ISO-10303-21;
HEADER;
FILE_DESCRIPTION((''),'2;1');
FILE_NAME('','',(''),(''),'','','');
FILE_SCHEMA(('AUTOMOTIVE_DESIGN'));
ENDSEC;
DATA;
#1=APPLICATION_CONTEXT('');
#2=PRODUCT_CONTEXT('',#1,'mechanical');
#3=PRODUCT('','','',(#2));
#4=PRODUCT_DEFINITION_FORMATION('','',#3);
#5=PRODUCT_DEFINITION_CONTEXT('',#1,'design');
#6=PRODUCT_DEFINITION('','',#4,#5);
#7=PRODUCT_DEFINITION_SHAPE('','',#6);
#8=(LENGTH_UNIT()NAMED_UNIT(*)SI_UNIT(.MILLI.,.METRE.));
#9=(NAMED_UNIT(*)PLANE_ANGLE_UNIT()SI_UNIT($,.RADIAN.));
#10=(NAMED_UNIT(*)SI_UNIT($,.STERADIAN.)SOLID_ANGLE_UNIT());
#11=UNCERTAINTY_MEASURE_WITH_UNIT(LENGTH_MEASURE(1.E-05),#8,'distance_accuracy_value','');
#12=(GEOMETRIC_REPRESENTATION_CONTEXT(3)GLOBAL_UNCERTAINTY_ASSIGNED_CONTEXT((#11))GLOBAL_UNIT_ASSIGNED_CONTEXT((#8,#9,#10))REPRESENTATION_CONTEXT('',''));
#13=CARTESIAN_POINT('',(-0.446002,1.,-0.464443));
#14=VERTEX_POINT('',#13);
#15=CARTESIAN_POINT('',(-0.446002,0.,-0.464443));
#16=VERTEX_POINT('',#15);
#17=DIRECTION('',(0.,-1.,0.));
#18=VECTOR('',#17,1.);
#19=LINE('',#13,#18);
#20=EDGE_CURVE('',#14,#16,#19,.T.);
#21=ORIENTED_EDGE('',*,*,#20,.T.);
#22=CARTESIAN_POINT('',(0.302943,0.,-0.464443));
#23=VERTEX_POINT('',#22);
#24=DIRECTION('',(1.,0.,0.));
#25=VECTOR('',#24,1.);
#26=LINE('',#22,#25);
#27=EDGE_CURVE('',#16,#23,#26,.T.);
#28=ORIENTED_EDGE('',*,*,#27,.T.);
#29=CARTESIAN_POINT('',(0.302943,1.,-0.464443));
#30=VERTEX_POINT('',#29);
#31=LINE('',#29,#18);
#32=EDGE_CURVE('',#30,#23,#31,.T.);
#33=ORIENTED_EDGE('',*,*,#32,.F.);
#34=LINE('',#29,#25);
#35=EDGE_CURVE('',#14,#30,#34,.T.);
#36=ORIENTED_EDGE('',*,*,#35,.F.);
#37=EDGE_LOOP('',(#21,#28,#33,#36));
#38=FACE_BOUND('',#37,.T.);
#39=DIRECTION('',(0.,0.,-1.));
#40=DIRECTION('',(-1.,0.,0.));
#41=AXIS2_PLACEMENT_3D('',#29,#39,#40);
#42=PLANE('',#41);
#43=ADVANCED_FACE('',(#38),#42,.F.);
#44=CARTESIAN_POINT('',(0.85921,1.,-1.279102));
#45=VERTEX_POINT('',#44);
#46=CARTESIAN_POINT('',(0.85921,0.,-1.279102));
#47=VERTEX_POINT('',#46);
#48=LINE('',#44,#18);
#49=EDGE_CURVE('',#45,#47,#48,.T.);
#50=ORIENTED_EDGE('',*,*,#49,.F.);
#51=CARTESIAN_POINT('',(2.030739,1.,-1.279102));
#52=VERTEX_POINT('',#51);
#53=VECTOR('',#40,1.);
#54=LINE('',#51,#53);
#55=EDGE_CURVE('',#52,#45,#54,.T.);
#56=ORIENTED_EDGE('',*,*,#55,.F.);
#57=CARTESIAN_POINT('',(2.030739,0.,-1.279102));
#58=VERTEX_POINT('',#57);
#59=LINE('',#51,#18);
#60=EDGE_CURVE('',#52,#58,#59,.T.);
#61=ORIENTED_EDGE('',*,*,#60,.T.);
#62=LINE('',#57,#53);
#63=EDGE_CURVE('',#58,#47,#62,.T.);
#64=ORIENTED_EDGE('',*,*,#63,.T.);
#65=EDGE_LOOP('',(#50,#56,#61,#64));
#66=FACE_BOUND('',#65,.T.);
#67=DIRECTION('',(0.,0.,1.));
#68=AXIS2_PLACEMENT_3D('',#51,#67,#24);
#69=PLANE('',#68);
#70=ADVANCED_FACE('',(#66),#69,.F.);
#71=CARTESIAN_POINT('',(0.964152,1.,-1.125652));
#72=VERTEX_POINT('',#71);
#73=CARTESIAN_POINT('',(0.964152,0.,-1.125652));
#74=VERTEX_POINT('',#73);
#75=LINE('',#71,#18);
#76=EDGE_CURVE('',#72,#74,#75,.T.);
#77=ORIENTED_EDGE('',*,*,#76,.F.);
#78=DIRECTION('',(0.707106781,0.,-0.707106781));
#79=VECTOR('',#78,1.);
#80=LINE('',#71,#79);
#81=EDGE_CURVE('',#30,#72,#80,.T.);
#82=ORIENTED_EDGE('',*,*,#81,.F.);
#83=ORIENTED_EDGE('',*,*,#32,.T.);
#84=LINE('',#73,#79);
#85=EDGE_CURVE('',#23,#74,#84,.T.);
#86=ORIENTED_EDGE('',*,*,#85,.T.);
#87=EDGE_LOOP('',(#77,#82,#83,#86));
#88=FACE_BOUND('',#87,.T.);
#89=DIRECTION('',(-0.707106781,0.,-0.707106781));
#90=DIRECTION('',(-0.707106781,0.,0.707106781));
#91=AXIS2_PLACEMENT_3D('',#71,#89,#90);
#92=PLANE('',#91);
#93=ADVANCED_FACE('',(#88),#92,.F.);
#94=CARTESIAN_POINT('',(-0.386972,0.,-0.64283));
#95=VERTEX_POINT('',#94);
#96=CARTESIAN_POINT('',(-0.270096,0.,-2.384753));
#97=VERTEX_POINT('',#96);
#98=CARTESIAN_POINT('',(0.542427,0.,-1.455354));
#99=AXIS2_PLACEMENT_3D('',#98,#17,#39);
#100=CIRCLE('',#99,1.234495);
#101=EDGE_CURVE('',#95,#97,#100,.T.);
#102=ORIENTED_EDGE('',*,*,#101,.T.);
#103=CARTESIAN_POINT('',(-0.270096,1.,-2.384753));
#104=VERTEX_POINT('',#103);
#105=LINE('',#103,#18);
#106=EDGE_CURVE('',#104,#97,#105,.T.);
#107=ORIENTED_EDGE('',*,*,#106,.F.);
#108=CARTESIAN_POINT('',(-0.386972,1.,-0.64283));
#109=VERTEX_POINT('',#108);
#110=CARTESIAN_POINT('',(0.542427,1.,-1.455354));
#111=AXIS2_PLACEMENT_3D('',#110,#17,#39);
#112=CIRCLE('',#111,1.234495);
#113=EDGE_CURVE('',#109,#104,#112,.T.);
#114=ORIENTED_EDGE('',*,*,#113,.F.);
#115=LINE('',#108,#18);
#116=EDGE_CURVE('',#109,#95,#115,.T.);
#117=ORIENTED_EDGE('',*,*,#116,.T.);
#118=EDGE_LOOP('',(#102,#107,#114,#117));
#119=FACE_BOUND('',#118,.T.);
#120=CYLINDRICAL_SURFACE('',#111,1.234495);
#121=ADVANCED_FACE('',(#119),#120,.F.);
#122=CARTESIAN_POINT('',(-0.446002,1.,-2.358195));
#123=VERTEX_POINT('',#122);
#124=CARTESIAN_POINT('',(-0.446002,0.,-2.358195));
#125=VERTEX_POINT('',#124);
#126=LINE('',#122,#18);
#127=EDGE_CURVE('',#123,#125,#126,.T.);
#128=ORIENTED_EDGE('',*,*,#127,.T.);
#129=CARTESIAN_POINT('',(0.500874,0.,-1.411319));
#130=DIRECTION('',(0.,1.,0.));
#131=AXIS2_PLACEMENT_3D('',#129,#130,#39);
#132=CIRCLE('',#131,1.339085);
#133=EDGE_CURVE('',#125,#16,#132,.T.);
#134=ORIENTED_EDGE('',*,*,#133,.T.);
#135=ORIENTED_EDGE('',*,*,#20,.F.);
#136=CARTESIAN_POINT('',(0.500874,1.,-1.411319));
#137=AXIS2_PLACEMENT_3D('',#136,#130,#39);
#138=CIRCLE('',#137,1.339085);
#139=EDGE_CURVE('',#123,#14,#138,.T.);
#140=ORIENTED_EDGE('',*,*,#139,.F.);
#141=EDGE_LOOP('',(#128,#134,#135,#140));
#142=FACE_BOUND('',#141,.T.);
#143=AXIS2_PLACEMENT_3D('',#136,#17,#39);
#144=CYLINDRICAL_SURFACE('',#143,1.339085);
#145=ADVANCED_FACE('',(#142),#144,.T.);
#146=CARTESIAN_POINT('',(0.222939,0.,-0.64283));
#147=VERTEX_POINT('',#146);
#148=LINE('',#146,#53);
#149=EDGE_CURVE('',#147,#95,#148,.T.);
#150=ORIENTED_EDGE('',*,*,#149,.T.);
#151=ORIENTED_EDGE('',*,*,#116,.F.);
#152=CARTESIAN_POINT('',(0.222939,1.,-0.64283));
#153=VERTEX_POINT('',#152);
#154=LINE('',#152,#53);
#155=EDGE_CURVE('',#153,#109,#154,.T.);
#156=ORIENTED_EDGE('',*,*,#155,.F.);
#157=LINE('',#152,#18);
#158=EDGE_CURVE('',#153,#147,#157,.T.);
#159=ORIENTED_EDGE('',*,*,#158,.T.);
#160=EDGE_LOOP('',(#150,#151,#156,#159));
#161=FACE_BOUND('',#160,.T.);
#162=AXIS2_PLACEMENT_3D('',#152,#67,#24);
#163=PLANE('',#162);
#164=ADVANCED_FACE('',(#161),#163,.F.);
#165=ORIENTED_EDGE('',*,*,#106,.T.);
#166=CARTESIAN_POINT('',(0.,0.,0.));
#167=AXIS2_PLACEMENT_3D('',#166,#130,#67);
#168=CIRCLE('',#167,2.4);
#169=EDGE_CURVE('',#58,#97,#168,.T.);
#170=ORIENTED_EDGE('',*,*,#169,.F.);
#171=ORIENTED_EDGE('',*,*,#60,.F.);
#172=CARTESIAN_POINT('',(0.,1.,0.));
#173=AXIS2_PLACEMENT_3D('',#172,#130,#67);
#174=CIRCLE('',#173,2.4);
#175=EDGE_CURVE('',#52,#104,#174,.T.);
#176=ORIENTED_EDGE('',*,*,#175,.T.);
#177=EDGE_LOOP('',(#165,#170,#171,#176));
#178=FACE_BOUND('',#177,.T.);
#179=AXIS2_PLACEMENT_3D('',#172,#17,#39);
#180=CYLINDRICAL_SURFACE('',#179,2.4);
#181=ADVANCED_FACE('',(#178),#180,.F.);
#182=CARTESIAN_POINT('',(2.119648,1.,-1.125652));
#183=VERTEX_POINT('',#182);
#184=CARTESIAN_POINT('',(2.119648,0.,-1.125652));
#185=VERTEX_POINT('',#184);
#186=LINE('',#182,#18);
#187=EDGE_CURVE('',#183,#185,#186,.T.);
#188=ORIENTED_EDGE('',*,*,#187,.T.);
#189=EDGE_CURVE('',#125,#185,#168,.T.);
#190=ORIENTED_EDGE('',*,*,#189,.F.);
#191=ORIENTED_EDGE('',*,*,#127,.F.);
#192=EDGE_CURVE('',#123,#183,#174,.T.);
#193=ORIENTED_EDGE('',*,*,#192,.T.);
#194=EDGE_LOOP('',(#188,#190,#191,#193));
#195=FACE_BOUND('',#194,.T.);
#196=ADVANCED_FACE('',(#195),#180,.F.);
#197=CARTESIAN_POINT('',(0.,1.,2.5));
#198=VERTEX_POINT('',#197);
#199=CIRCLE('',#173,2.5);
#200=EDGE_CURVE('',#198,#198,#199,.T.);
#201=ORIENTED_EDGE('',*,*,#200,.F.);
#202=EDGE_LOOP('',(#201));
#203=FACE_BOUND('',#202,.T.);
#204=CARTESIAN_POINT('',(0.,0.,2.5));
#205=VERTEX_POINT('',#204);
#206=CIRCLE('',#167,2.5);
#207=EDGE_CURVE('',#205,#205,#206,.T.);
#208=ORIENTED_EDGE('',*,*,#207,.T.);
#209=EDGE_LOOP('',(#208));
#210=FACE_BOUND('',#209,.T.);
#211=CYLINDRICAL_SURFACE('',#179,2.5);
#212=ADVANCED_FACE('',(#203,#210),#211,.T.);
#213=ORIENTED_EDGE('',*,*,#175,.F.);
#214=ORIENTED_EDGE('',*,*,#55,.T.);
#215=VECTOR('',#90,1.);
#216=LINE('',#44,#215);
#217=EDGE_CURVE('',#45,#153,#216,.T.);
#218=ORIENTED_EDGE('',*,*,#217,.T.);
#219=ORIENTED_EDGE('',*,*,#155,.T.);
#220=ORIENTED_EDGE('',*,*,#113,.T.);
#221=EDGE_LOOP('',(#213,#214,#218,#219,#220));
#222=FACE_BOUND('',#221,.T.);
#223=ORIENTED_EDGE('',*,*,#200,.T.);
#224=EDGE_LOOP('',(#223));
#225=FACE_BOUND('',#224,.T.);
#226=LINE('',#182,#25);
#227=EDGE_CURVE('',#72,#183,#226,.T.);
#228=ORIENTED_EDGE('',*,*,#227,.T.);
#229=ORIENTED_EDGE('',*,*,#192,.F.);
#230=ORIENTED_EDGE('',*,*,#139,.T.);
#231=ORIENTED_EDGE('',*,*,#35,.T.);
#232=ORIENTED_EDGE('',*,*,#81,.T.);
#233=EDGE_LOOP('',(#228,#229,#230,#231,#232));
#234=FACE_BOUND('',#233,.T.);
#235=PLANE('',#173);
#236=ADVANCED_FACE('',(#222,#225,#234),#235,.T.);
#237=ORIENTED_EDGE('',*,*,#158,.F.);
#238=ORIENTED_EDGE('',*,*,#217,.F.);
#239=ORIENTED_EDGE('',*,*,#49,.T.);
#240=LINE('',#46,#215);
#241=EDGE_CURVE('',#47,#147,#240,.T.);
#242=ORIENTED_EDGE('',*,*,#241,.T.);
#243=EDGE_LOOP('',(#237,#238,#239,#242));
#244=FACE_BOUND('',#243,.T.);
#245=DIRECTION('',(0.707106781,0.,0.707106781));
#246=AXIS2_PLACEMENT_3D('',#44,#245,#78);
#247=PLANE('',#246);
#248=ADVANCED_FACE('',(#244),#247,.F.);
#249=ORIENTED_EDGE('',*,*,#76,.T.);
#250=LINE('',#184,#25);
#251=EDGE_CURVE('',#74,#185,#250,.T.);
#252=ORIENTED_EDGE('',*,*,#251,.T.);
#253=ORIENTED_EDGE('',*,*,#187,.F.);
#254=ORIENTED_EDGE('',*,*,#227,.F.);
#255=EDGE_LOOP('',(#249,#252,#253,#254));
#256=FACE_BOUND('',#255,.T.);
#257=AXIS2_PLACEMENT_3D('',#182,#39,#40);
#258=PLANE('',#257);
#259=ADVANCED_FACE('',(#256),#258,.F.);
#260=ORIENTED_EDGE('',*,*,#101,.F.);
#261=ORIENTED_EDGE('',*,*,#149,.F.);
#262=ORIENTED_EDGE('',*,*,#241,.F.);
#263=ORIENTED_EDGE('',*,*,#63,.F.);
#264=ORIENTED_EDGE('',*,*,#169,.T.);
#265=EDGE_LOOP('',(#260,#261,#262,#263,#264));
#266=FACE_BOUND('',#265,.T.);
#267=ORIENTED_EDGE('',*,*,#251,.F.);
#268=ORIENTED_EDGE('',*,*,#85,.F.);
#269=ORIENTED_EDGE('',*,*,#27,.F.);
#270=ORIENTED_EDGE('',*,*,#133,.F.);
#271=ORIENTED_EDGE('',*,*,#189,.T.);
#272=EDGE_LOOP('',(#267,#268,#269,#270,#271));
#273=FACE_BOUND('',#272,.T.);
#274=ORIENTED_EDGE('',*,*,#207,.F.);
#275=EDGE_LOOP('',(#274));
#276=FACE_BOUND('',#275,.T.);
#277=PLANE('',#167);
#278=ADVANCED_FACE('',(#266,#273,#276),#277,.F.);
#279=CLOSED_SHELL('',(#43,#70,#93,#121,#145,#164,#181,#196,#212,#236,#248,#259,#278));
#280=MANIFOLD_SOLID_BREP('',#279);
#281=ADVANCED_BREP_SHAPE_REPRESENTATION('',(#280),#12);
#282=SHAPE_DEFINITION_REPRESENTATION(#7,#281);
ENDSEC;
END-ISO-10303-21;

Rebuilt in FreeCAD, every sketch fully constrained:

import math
import FreeCAD as App
import Part
import Sketcher

V = App.Vector
Q = App.Units.Quantity

doc = App.newDocument("Part")
body = doc.addObject("PartDesign::Body", "Body")

# Sketch on XZ plane
sketch1 = body.newObject("Sketcher::SketchObject", "Sketch")
sketch1.AttachmentSupport = (doc.getObject("XZ_Plane"), [""])
sketch1.MapMode = "FlatFace"
sketch1.addGeometry(Part.Circle(V(0, 0, 0), V(0, 0, 1), 2.5), False)
sketch1.addGeometry(Part.Circle(V(0, 0, 0), V(0, 0, 1), 2.4), False)
sketch1.addConstraint(Sketcher.Constraint("Coincident", 0, 3, -1, 1))
sketch1.addConstraint(Sketcher.Constraint("Coincident", 1, 3, -1, 1))
sketch1.addConstraint(Sketcher.Constraint("Diameter", 0, Q("5 mm")))
sketch1.addConstraint(Sketcher.Constraint("Diameter", 1, Q("4.8 mm")))
pad1 = body.newObject("PartDesign::Pad", "Pad")
pad1.Profile = sketch1
pad1.Length = 1
pad1.Reversed = True

# Sketch on XZ plane
sketch2 = body.newObject("Sketcher::SketchObject", "Sketch001")
sketch2.AttachmentSupport = (doc.getObject("XZ_Plane"), [""])
sketch2.MapMode = "FlatFace"
sketch2.addGeometry(Part.LineSegment(V(0.964152, -1.125652, 0), V(2.119648, -1.125652, 0)), False)
sketch2.addGeometry(Part.ArcOfCircle(Part.Circle(V(0.000001, 0, 0), V(0, 0, 1), 2.399999), math.radians(-32.205602), math.radians(-27.9708)), False)
sketch2.addGeometry(Part.LineSegment(V(2.030739, -1.279102, 0), V(0.85921, -1.279102, 0)), False)
sketch2.addGeometry(Part.LineSegment(V(0.85921, -1.279102, 0), V(0.222939, -0.64283, 0)), False)
sketch2.addGeometry(Part.LineSegment(V(0.222939, -0.64283, 0), V(-0.386972, -0.64283, 0)), False)
sketch2.addGeometry(Part.ArcOfCircle(Part.Circle(V(0.542427, -1.455354, 0), V(0, 0, 1), 1.234495), math.radians(138.838566), math.radians(228.838566)), False)
sketch2.addGeometry(Part.ArcOfCircle(Part.Circle(V(0, 0, 0), V(0, 0, 1), 2.4), math.radians(-100.709774), math.radians(-96.461765)), False)
sketch2.addGeometry(Part.ArcOfCircle(Part.Circle(V(0.500874, -1.411319, 0), V(0, 0, 1), 1.339085), math.radians(135), math.radians(225)), False)
sketch2.addGeometry(Part.LineSegment(V(-0.446002, -0.464443, 0), V(0.302943, -0.464443, 0)), False)
sketch2.addGeometry(Part.LineSegment(V(0.302943, -0.464443, 0), V(0.964152, -1.125652, 0)), False)
sketch2.addConstraint(Sketcher.Constraint("Coincident", 0, 2, 1, 2))
sketch2.addConstraint(Sketcher.Constraint("Coincident", 1, 1, 2, 1))
sketch2.addConstraint(Sketcher.Constraint("Coincident", 2, 2, 3, 1))
sketch2.addConstraint(Sketcher.Constraint("Coincident", 3, 2, 4, 1))
sketch2.addConstraint(Sketcher.Constraint("Coincident", 4, 2, 5, 1))
sketch2.addConstraint(Sketcher.Constraint("Coincident", 5, 2, 6, 2))
sketch2.addConstraint(Sketcher.Constraint("Coincident", 6, 1, 7, 2))
sketch2.addConstraint(Sketcher.Constraint("Coincident", 7, 1, 8, 1))
sketch2.addConstraint(Sketcher.Constraint("Coincident", 8, 2, 9, 1))
sketch2.addConstraint(Sketcher.Constraint("Coincident", 9, 2, 0, 1))
sketch2.addConstraint(Sketcher.Constraint("Horizontal", 0))
sketch2.addConstraint(Sketcher.Constraint("Horizontal", 2))
sketch2.addConstraint(Sketcher.Constraint("Horizontal", 4))
sketch2.addConstraint(Sketcher.Constraint("Horizontal", 8))
sketch2.addConstraint(Sketcher.Constraint("Coincident", 1, 3, -1, 1))
sketch2.addConstraint(Sketcher.Constraint("Coincident", 6, 3, -1, 1))
sketch2.addConstraint(Sketcher.Constraint("Equal", 1, 6))
sketch2.addConstraint(Sketcher.Constraint("Parallel", 3, 9))
sketch2.addConstraint(Sketcher.Constraint("Vertical", 6, 1, 7, 1))
sketch2.addConstraint(Sketcher.Constraint("Radius", 1, Q("2.399999 mm")))
sketch2.addConstraint(Sketcher.Constraint("Angle", 3, Q("135 deg")))
sketch2.addConstraint(Sketcher.Constraint("Radius", 5, Q("1.234495 mm")))
sketch2.addConstraint(Sketcher.Constraint("Radius", 7, Q("1.339085 mm")))
sketch2.addConstraint(Sketcher.Constraint("DistanceX", 2, 2, 2, 1, Q("1.171529 mm")))
sketch2.addConstraint(Sketcher.Constraint("DistanceX", 4, 2, 4, 1, Q("0.609911 mm")))
sketch2.addConstraint(Sketcher.Constraint("DistanceY", 1, 1, -1, 1, Q("1.279102 mm")))
sketch2.addConstraint(Sketcher.Constraint("DistanceY", 5, 3, 0, 2, Q("0.329702 mm")))
sketch2.addConstraint(Sketcher.Constraint("DistanceX", 4, 2, 5, 3, Q("0.9294 mm")))
sketch2.addConstraint(Sketcher.Constraint("DistanceY", 5, 2, 5, 3, Q("0.9294 mm")))
sketch2.addConstraint(Sketcher.Constraint("Distance", 9, Q("0.93509 mm")))
sketch2.addConstraint(Sketcher.Constraint("DistanceX", 0, 1, 0, 2, Q("1.155496 mm")))
sketch2.addConstraint(Sketcher.Constraint("DistanceX", 8, 1, 8, 2, Q("0.748945 mm")))
pad2 = body.newObject("PartDesign::Pad", "Pad001")
pad2.Profile = sketch2
pad2.Length = 1
pad2.Reversed = True

doc.recompute()
